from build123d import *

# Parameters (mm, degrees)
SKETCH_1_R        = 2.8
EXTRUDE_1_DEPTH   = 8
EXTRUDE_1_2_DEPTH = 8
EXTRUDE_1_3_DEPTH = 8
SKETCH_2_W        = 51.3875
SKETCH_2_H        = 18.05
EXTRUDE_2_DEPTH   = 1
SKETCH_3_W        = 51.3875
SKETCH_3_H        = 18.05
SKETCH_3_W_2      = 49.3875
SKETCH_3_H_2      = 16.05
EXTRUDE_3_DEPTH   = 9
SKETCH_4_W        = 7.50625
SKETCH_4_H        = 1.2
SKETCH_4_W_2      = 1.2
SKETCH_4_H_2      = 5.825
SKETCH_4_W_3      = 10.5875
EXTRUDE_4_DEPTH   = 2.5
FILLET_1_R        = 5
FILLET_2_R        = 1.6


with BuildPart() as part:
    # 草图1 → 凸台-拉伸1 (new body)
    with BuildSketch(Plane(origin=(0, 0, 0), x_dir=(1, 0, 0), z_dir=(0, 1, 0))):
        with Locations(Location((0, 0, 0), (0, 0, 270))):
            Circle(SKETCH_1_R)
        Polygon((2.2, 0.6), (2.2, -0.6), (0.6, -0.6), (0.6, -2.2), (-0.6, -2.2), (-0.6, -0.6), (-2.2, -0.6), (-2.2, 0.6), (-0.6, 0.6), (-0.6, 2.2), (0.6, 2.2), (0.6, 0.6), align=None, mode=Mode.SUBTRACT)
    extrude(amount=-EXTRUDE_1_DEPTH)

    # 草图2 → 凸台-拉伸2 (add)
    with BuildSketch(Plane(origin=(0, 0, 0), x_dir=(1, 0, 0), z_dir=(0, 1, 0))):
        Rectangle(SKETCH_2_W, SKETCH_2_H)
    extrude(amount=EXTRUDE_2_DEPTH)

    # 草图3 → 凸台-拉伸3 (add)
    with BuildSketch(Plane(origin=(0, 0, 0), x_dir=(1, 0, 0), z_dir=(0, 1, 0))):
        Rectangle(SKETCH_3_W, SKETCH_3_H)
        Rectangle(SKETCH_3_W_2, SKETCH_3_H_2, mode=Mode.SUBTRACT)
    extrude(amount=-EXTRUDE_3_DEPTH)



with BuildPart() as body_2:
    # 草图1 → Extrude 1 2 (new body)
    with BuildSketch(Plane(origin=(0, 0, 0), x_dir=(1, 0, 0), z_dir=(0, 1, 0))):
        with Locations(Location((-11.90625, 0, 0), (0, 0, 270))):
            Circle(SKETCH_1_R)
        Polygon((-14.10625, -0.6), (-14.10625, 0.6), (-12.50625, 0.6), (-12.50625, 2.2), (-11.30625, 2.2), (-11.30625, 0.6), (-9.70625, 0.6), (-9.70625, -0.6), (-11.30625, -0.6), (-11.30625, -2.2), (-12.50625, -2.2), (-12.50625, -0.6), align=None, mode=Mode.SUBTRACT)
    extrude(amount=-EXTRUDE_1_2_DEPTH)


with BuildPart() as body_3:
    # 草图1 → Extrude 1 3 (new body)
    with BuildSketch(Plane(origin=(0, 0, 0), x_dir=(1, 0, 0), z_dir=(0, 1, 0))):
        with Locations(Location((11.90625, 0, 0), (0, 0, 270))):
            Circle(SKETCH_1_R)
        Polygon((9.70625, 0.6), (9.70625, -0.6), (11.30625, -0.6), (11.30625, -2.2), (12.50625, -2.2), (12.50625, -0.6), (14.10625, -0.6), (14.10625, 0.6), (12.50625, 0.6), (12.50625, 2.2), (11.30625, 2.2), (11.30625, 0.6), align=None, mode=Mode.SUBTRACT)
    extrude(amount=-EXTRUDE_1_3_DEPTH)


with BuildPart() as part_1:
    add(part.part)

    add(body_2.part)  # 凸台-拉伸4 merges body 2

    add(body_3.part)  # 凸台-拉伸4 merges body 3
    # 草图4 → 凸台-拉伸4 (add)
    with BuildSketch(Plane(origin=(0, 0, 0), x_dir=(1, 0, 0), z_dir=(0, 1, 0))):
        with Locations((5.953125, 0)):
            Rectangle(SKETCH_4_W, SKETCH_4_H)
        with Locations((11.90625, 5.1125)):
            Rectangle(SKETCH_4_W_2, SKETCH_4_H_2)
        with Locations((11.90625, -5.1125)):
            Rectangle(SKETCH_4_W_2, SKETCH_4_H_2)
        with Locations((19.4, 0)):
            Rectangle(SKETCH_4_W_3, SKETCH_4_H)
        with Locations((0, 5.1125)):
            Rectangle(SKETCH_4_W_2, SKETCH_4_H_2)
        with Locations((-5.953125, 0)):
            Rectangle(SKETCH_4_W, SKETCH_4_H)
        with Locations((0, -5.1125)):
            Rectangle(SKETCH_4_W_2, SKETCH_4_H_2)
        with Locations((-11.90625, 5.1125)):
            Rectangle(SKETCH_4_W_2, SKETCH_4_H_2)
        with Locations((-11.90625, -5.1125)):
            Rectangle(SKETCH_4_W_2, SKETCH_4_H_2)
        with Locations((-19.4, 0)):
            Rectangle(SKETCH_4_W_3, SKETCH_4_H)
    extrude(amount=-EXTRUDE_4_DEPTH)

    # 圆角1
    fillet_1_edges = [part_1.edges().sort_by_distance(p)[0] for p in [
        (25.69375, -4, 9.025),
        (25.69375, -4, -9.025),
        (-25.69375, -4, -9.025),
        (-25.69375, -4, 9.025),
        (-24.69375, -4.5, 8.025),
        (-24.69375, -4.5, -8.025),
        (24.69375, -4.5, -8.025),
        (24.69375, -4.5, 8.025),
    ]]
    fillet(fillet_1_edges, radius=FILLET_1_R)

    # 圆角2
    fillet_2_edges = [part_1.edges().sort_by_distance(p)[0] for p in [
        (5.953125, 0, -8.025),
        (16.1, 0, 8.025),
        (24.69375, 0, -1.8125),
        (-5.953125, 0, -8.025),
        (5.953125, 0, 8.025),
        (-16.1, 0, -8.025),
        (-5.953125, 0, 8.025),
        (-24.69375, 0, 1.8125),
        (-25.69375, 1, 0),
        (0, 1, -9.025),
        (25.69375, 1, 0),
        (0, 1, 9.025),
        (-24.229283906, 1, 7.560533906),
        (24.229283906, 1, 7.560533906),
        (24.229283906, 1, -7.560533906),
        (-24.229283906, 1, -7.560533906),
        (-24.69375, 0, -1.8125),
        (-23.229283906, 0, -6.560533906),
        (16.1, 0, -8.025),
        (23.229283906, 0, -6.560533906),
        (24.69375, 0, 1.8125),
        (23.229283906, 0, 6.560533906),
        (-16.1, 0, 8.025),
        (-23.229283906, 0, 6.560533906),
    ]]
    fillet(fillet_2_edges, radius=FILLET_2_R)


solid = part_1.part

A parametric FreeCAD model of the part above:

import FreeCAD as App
import Part
import Sketcher
from FreeCAD import Vector


def edges_at(feature, points):
    """Names of the edges that pass closest to the given points."""
    edges = feature.Shape.Edges
    near = lambda p: min(range(len(edges)), key=lambda i: edges[i].distToShape(Part.Vertex(*p))[0])
    return sorted({f"Edge{near(p) + 1}" for p in points})

doc = App.newDocument("Part")
body = doc.addObject("PartDesign::Body", "Body")

# Sketch on XZ plane
sketch1 = body.newObject("Sketcher::SketchObject", "Sketch")
sketch1.AttachmentSupport = (doc.getObject("XZ_Plane"), [""])
sketch1.MapMode = "FlatFace"
sketch1.addGeometry([
    Part.Circle(Vector(0, 0, 0), Vector(0, 0, 1), 2.8),  # 0
    Part.LineSegment(Vector(0.6, -0.6, 0), Vector(2.2, -0.6, 0)),  # 1
    Part.LineSegment(Vector(2.2, -0.6, 0), Vector(2.2, 0.6, 0)),  # 2
    Part.LineSegment(Vector(2.2, 0.6, 0), Vector(0.6, 0.6, 0)),  # 3
    Part.LineSegment(Vector(0.6, 0.6, 0), Vector(0.6, 2.2, 0)),  # 4
    Part.LineSegment(Vector(0.6, 2.2, 0), Vector(-0.6, 2.2, 0)),  # 5
    Part.LineSegment(Vector(-0.6, 2.2, 0), Vector(-0.6, 0.6, 0)),  # 6
    Part.LineSegment(Vector(-0.6, 0.6, 0), Vector(-2.2, 0.6, 0)),  # 7
    Part.LineSegment(Vector(-2.2, 0.6, 0), Vector(-2.2, -0.6, 0)),  # 8
    Part.LineSegment(Vector(-2.2, -0.6, 0), Vector(-0.6, -0.6, 0)),  # 9
    Part.LineSegment(Vector(-0.6, -0.6, 0), Vector(-0.6, -2.2, 0)),  # 10
    Part.LineSegment(Vector(-0.6, -2.2, 0), Vector(0.6, -2.2, 0)),  # 11
    Part.LineSegment(Vector(0.6, -2.2, 0), Vector(0.6, -0.6, 0)),  # 12
], False)
sketch1.addConstraint([
    Sketcher.Constraint("Coincident", 1, 2, 2, 1),
    Sketcher.Constraint("Coincident", 2, 2, 3, 1),
    Sketcher.Constraint("Coincident", 3, 2, 4, 1),
    Sketcher.Constraint("Coincident", 4, 2, 5, 1),
    Sketcher.Constraint("Coincident", 5, 2, 6, 1),
    Sketcher.Constraint("Coincident", 6, 2, 7, 1),
    Sketcher.Constraint("Coincident", 7, 2, 8, 1),
    Sketcher.Constraint("Coincident", 8, 2, 9, 1),
    Sketcher.Constraint("Coincident", 9, 2, 10, 1),
    Sketcher.Constraint("Coincident", 10, 2, 11, 1),
    Sketcher.Constraint("Coincident", 11, 2, 12, 1),
    Sketcher.Constraint("Coincident", 12, 2, 1, 1),
    Sketcher.Constraint("Horizontal", 1),
    Sketcher.Constraint("Vertical", 2),
    Sketcher.Constraint("Horizontal", 3),
    Sketcher.Constraint("Vertical", 4),
    Sketcher.Constraint("Horizontal", 5),
    Sketcher.Constraint("Vertical", 6),
    Sketcher.Constraint("Horizontal", 7),
    Sketcher.Constraint("Vertical", 8),
    Sketcher.Constraint("Horizontal", 9),
    Sketcher.Constraint("Vertical", 10),
    Sketcher.Constraint("Horizontal", 11),
    Sketcher.Constraint("Vertical", 12),
    Sketcher.Constraint("Coincident", 0, 3, -1, 1),
    Sketcher.Constraint("Symmetric", 1, 2, 7, 2, -1, 1),
    Sketcher.Constraint("Symmetric", 3, 2, 9, 2, -1, 1),
    Sketcher.Constraint("Symmetric", 5, 2, 11, 2, -1, 1),
    Sketcher.Constraint("Symmetric", 3, 2, 6, 2, -2),
    Sketcher.Constraint("Equal", 11, 2),
    Sketcher.Constraint("Equal", 9, 4),
    Sketcher.Constraint("Diameter", 0, 5.6),
    Sketcher.Constraint("DistanceX", 1, 1, 1, 2, 1.6),
    Sketcher.Constraint("DistanceX", 5, 2, 5, 1, 1.2),
])
pad1 = body.newObject("PartDesign::Pad", "Pad")
pad1.Profile = sketch1
pad1.Length = 8

# Sketch on XZ plane
sketch2 = body.newObject("Sketcher::SketchObject", "Sketch001")
sketch2.AttachmentSupport = (doc.getObject("XZ_Plane"), [""])
sketch2.MapMode = "FlatFace"
sketch2.addGeometry([
    Part.LineSegment(Vector(-25.69375, -9.025, 0), Vector(-25.69375, 9.025, 0)),
    Part.LineSegment(Vector(-25.69375, 9.025, 0), Vector(25.69375, 9.025, 0)),
    Part.LineSegment(Vector(25.69375, 9.025, 0), Vector(25.69375, -9.025, 0)),
    Part.LineSegment(Vector(25.69375, -9.025, 0), Vector(-25.69375, -9.025, 0)),
], False)
sketch2.addConstraint([
    Sketcher.Constraint("Coincident", 0, 2, 1, 1),
    Sketcher.Constraint("Coincident", 1, 2, 2, 1),
    Sketcher.Constraint("Coincident", 2, 2, 3, 1),
    Sketcher.Constraint("Coincident", 3, 2, 0, 1),
    Sketcher.Constraint("Vertical", 0),
    Sketcher.Constraint("Horizontal", 1),
    Sketcher.Constraint("Vertical", 2),
    Sketcher.Constraint("Horizontal", 3),
    Sketcher.Constraint("Symmetric", 0, 2, 2, 2, -1, 1),
    Sketcher.Constraint("DistanceY", 0, 1, 0, 2, 18.05),
    Sketcher.Constraint("DistanceX", 1, 1, 1, 2, 51.3875),
])
pad2 = body.newObject("PartDesign::Pad", "Pad001")
pad2.Profile = sketch2
pad2.Length = 1
pad2.Reversed = True

# Sketch on XZ plane
sketch3 = body.newObject("Sketcher::SketchObject", "Sketch002")
sketch3.AttachmentSupport = (doc.getObject("XZ_Plane"), [""])
sketch3.MapMode = "FlatFace"
sketch3.addGeometry([
    Part.LineSegment(Vector(-25.69375, -9.025, 0), Vector(-25.69375, 9.025, 0)),  # 0
    Part.LineSegment(Vector(-25.69375, 9.025, 0), Vector(25.69375, 9.025, 0)),  # 1
    Part.LineSegment(Vector(25.69375, 9.025, 0), Vector(25.69375, -9.025, 0)),  # 2
    Part.LineSegment(Vector(25.69375, -9.025, 0), Vector(-25.69375, -9.025, 0)),  # 3
    Part.LineSegment(Vector(24.69375, 8.025, 0), Vector(-24.69375, 8.025, 0)),  # 4
    Part.LineSegment(Vector(-24.69375, 8.025, 0), Vector(-24.69375, -8.025, 0)),  # 5
    Part.LineSegment(Vector(-24.69375, -8.025, 0), Vector(24.69375, -8.025, 0)),  # 6
    Part.LineSegment(Vector(24.69375, -8.025, 0), Vector(24.69375, 8.025, 0)),  # 7
], False)
sketch3.addConstraint([
    Sketcher.Constraint("Coincident", 0, 2, 1, 1),
    Sketcher.Constraint("Coincident", 1, 2, 2, 1),
    Sketcher.Constraint("Coincident", 2, 2, 3, 1),
    Sketcher.Constraint("Coincident", 3, 2, 0, 1),
    Sketcher.Constraint("Coincident", 4, 2, 5, 1),
    Sketcher.Constraint("Coincident", 5, 2, 6, 1),
    Sketcher.Constraint("Coincident", 6, 2, 7, 1),
    Sketcher.Constraint("Coincident", 7, 2, 4, 1),
    Sketcher.Constraint("Vertical", 0),
    Sketcher.Constraint("Horizontal", 1),
    Sketcher.Constraint("Vertical", 2),
    Sketcher.Constraint("Horizontal", 3),
    Sketcher.Constraint("Horizontal", 4),
    Sketcher.Constraint("Vertical", 5),
    Sketcher.Constraint("Horizontal", 6),
    Sketcher.Constraint("Vertical", 7),
    Sketcher.Constraint("Symmetric", 0, 2, 2, 2, -1, 1),
    Sketcher.Constraint("Symmetric", 4, 2, 6, 2, -1, 1),
    Sketcher.Constraint("DistanceX", 0, 2, 4, 2, 1.0),
    Sketcher.Constraint("DistanceY", 4, 2, 0, 2, 1.0),
    Sketcher.Constraint("DistanceY", 0, 1, 0, 2, 18.05),
    Sketcher.Constraint("DistanceX", 1, 1, 1, 2, 51.3875),
])
pad3 = body.newObject("PartDesign::Pad", "Pad002")
pad3.Profile = sketch3
pad3.Length = 9
body2 = doc.addObject("PartDesign::Body", "Body001")

# Sketch on XZ plane
sketch4 = body2.newObject("Sketcher::SketchObject", "Sketch003")
sketch4.AttachmentSupport = (doc.getObject("XZ_Plane001"), [""])
sketch4.MapMode = "FlatFace"
sketch4.addGeometry([
    Part.Circle(Vector(-11.90625, 0, 0), Vector(0, 0, 1), 2.8),  # 0
    Part.LineSegment(Vector(-12.50625, 0.6, 0), Vector(-14.10625, 0.6, 0)),  # 1
    Part.LineSegment(Vector(-14.10625, 0.6, 0), Vector(-14.10625, -0.6, 0)),  # 2
    Part.LineSegment(Vector(-14.10625, -0.6, 0), Vector(-12.50625, -0.6, 0)),  # 3
    Part.LineSegment(Vector(-12.50625, -0.6, 0), Vector(-12.50625, -2.2, 0)),  # 4
    Part.LineSegment(Vector(-12.50625, -2.2, 0), Vector(-11.30625, -2.2, 0)),  # 5
    Part.LineSegment(Vector(-11.30625, -2.2, 0), Vector(-11.30625, -0.6, 0)),  # 6
    Part.LineSegment(Vector(-11.30625, -0.6, 0), Vector(-9.70625, -0.6, 0)),  # 7
    Part.LineSegment(Vector(-9.70625, -0.6, 0), Vector(-9.70625, 0.6, 0)),  # 8
    Part.LineSegment(Vector(-9.70625, 0.6, 0), Vector(-11.30625, 0.6, 0)),  # 9
    Part.LineSegment(Vector(-11.30625, 0.6, 0), Vector(-11.30625, 2.2, 0)),  # 10
    Part.LineSegment(Vector(-11.30625, 2.2, 0), Vector(-12.50625, 2.2, 0)),  # 11
    Part.LineSegment(Vector(-12.50625, 2.2, 0), Vector(-12.50625, 0.6, 0)),  # 12
], False)
sketch4.addConstraint([
    Sketcher.Constraint("Coincident", 1, 2, 2, 1),
    Sketcher.Constraint("Coincident", 2, 2, 3, 1),
    Sketcher.Constraint("Coincident", 3, 2, 4, 1),
    Sketcher.Constraint("Coincident", 4, 2, 5, 1),
    Sketcher.Constraint("Coincident", 5, 2, 6, 1),
    Sketcher.Constraint("Coincident", 6, 2, 7, 1),
    Sketcher.Constraint("Coincident", 7, 2, 8, 1),
    Sketcher.Constraint("Coincident", 8, 2, 9, 1),
    Sketcher.Constraint("Coincident", 9, 2, 10, 1),
    Sketcher.Constraint("Coincident", 10, 2, 11, 1),
    Sketcher.Constraint("Coincident", 11, 2, 12, 1),
    Sketcher.Constraint("Coincident", 12, 2, 1, 1),
    Sketcher.Constraint("Horizontal", 1),
    Sketcher.Constraint("Vertical", 2),
    Sketcher.Constraint("Horizontal", 3),
    Sketcher.Constraint("Vertical", 4),
    Sketcher.Constraint("Horizontal", 5),
    Sketcher.Constraint("Vertical", 6),
    Sketcher.Constraint("Horizontal", 7),
    Sketcher.Constraint("Vertical", 8),
    Sketcher.Constraint("Horizontal", 9),
    Sketcher.Constraint("Vertical", 10),
    Sketcher.Constraint("Horizontal", 11),
    Sketcher.Constraint("Vertical", 12),
    Sketcher.Constraint("Symmetric", 6, 2, 9, 2, -1),
    Sketcher.Constraint("Symmetric", 4, 2, 11, 2, -1),
    Sketcher.Constraint("PointOnObject", 0, 3, -1),
    Sketcher.Constraint("Horizontal", 3, 2, 6, 2),
    Sketcher.Constraint("Horizontal", 1, 2, 8, 2),
    Sketcher.Constraint("Equal", 3, 7),
    Sketcher.Constraint("Equal", 11, 2),
    Sketcher.Constraint("Equal", 9, 4),
    Sketcher.Constraint("Diameter", 0, 5.6),
    Sketcher.Constraint("DistanceX", 1, 2, 1, 1, 1.6),
    Sketcher.Constraint("DistanceX", 5, 1, 5, 2, 1.2),
    Sketcher.Constraint("DistanceX", 1, 2, 0, 3, 2.2),
    Sketcher.Constraint("DistanceX", 0, 3, -1, 1, 11.90625),
])
pad4 = body2.newObject("PartDesign::Pad", "Pad003")
pad4.Profile = sketch4
pad4.Length = 8
body3 = doc.addObject("PartDesign::Body", "Body002")

# Sketch on XZ plane
sketch5 = body3.newObject("Sketcher::SketchObject", "Sketch004")
sketch5.AttachmentSupport = (doc.getObject("XZ_Plane002"), [""])
sketch5.MapMode = "FlatFace"
sketch5.addGeometry([
    Part.Circle(Vector(11.90625, 0, 0), Vector(0, 0, 1), 2.8),  # 0
    Part.LineSegment(Vector(9.70625, 0.6, 0), Vector(9.70625, -0.6, 0)),  # 1
    Part.LineSegment(Vector(9.70625, -0.6, 0), Vector(11.30625, -0.6, 0)),  # 2
    Part.LineSegment(Vector(11.30625, -0.6, 0), Vector(11.30625, -2.2, 0)),  # 3
    Part.LineSegment(Vector(11.30625, -2.2, 0), Vector(12.50625, -2.2, 0)),  # 4
    Part.LineSegment(Vector(12.50625, -2.2, 0), Vector(12.50625, -0.6, 0)),  # 5
    Part.LineSegment(Vector(12.50625, -0.6, 0), Vector(14.10625, -0.6, 0)),  # 6
    Part.LineSegment(Vector(14.10625, -0.6, 0), Vector(14.10625, 0.6, 0)),  # 7
    Part.LineSegment(Vector(14.10625, 0.6, 0), Vector(12.50625, 0.6, 0)),  # 8
    Part.LineSegment(Vector(12.50625, 0.6, 0), Vector(12.50625, 2.2, 0)),  # 9
    Part.LineSegment(Vector(12.50625, 2.2, 0), Vector(11.30625, 2.2, 0)),  # 10
    Part.LineSegment(Vector(11.30625, 2.2, 0), Vector(11.30625, 0.6, 0)),  # 11
    Part.LineSegment(Vector(11.30625, 0.6, 0), Vector(9.70625, 0.6, 0)),  # 12
], False)
sketch5.addConstraint([
    Sketcher.Constraint("Coincident", 1, 2, 2, 1),
    Sketcher.Constraint("Coincident", 2, 2, 3, 1),
    Sketcher.Constraint("Coincident", 3, 2, 4, 1),
    Sketcher.Constraint("Coincident", 4, 2, 5, 1),
    Sketcher.Constraint("Coincident", 5, 2, 6, 1),
    Sketcher.Constraint("Coincident", 6, 2, 7, 1),
    Sketcher.Constraint("Coincident", 7, 2, 8, 1),
    Sketcher.Constraint("Coincident", 8, 2, 9, 1),
    Sketcher.Constraint("Coincident", 9, 2, 10, 1),
    Sketcher.Constraint("Coincident", 10, 2, 11, 1),
    Sketcher.Constraint("Coincident", 11, 2, 12, 1),
    Sketcher.Constraint("Coincident", 12, 2, 1, 1),
    Sketcher.Constraint("Vertical", 1),
    Sketcher.Constraint("Horizontal", 2),
    Sketcher.Constraint("Vertical", 3),
    Sketcher.Constraint("Horizontal", 4),
    Sketcher.Constraint("Vertical", 5),
    Sketcher.Constraint("Horizontal", 6),
    Sketcher.Constraint("Vertical", 7),
    Sketcher.Constraint("Horizontal", 8),
    Sketcher.Constraint("Vertical", 9),
    Sketcher.Constraint("Horizontal", 10),
    Sketcher.Constraint("Vertical", 11),
    Sketcher.Constraint("Horizontal", 12),
    Sketcher.Constraint("Symmetric", 5, 2, 8, 2, -1),
    Sketcher.Constraint("Symmetric", 3, 2, 10, 2, -1),
    Sketcher.Constraint("PointOnObject", 0, 3, -1),
    Sketcher.Constraint("Horizontal", 2, 2, 5, 2),
    Sketcher.Constraint("Horizontal", 8, 2, 11, 2),
    Sketcher.Constraint("Equal", 2, 6),
    Sketcher.Constraint("Equal", 10, 1),
    Sketcher.Constraint("Equal", 12, 3),
    Sketcher.Constraint("Diameter", 0, 5.6),
    Sketcher.Constraint("DistanceX", 2, 1, 2, 2, 1.6),
    Sketcher.Constraint("DistanceX", 4, 1, 4, 2, 1.2),
    Sketcher.Constraint("DistanceX", 1, 2, 0, 3, 2.2),
    Sketcher.Constraint("DistanceX", -1, 1, 0, 3, 11.90625),
])
pad5 = body3.newObject("PartDesign::Pad", "Pad004")
pad5.Profile = sketch5
pad5.Length = 8
doc.recompute()

boolean = body.newObject("PartDesign::Boolean", "Boolean")
boolean.Type = "Fuse"
boolean.addObjects([body2])
doc.recompute()

boolean2 = body.newObject("PartDesign::Boolean", "Boolean001")
boolean2.Type = "Fuse"
boolean2.addObjects([body3])

# Sketch on XZ plane
sketch6 = body.newObject("Sketcher::SketchObject", "Sketch005")
sketch6.AttachmentSupport = (doc.getObject("XZ_Plane"), [""])
sketch6.MapMode = "FlatFace"
sketch6.addGeometry([
    Part.LineSegment(Vector(2.2, -0.6, 0), Vector(2.2, 0.6, 0)),  # 0
    Part.LineSegment(Vector(2.2, 0.6, 0), Vector(9.70625, 0.6, 0)),  # 1
    Part.LineSegment(Vector(9.70625, 0.6, 0), Vector(9.70625, -0.6, 0)),  # 2
    Part.LineSegment(Vector(9.70625, -0.6, 0), Vector(2.2, -0.6, 0)),  # 3
    Part.LineSegment(Vector(11.30625, -8.025, 0), Vector(11.30625, -2.2, 0)),  # 4
    Part.LineSegment(Vector(11.30625, -2.2, 0), Vector(12.50625, -2.2, 0)),  # 5
    Part.LineSegment(Vector(12.50625, -2.2, 0), Vector(12.50625, -8.025, 0)),  # 6
    Part.LineSegment(Vector(12.50625, -8.025, 0), Vector(11.30625, -8.025, 0)),  # 7
    Part.LineSegment(Vector(11.30625, 2.2, 0), Vector(11.30625, 8.025, 0)),  # 8
    Part.LineSegment(Vector(11.30625, 8.025, 0), Vector(12.50625, 8.025, 0)),  # 9
    Part.LineSegment(Vector(12.50625, 8.025, 0), Vector(12.50625, 2.2, 0)),  # 10
    Part.LineSegment(Vector(12.50625, 2.2, 0), Vector(11.30625, 2.2, 0)),  # 11
    Part.LineSegment(Vector(14.10625, -0.6, 0), Vector(14.10625, 0.6, 0)),  # 12
    Part.LineSegment(Vector(14.10625, 0.6, 0), Vector(24.69375, 0.6, 0)),  # 13
    Part.LineSegment(Vector(24.69375, 0.6, 0), Vector(24.69375, -0.6, 0)),  # 14
    Part.LineSegment(Vector(24.69375, -0.6, 0), Vector(14.10625, -0.6, 0)),  # 15
    Part.LineSegment(Vector(-0.6, -8.025, 0), Vector(-0.6, -2.2, 0)),  # 16
    Part.LineSegment(Vector(-0.6, -2.2, 0), Vector(0.6, -2.2, 0)),  # 17
    Part.LineSegment(Vector(0.6, -2.2, 0), Vector(0.6, -8.025, 0)),  # 18
    Part.LineSegment(Vector(0.6, -8.025, 0), Vector(-0.6, -8.025, 0)),  # 19
    Part.LineSegment(Vector(-9.70625, -0.6, 0), Vector(-9.70625, 0.6, 0)),  # 20
    Part.LineSegment(Vector(-9.70625, 0.6, 0), Vector(-2.2, 0.6, 0)),  # 21
    Part.LineSegment(Vector(-2.2, 0.6, 0), Vector(-2.2, -0.6, 0)),  # 22
    Part.LineSegment(Vector(-2.2, -0.6, 0), Vector(-9.70625, -0.6, 0)),  # 23
    Part.LineSegment(Vector(-0.6, 2.2, 0), Vector(-0.6, 8.025, 0)),  # 24
    Part.LineSegment(Vector(-0.6, 8.025, 0), Vector(0.6, 8.025, 0)),  # 25
    Part.LineSegment(Vector(0.6, 8.025, 0), Vector(0.6, 2.2, 0)),  # 26
    Part.LineSegment(Vector(0.6, 2.2, 0), Vector(-0.6, 2.2, 0)),  # 27
    Part.LineSegment(Vector(-12.50625, -8.025, 0), Vector(-12.50625, -2.2, 0)),  # 28
    Part.LineSegment(Vector(-12.50625, -2.2, 0), Vector(-11.30625, -2.2, 0)),  # 29
    Part.LineSegment(Vector(-11.30625, -2.2, 0), Vector(-11.30625, -8.025, 0)),  # 30
    Part.LineSegment(Vector(-11.30625, -8.025, 0), Vector(-12.50625, -8.025, 0)),  # 31
    Part.LineSegment(Vector(-12.50625, 2.2, 0), Vector(-12.50625, 8.025, 0)),  # 32
    Part.LineSegment(Vector(-12.50625, 8.025, 0), Vector(-11.30625, 8.025, 0)),  # 33
    Part.LineSegment(Vector(-11.30625, 8.025, 0), Vector(-11.30625, 2.2, 0)),  # 34
    Part.LineSegment(Vector(-11.30625, 2.2, 0), Vector(-12.50625, 2.2, 0)),  # 35
    Part.LineSegment(Vector(-24.69375, -0.6, 0), Vector(-24.69375, 0.6, 0)),  # 36
    Part.LineSegment(Vector(-24.69375, 0.6, 0), Vector(-14.10625, 0.6, 0)),  # 37
    Part.LineSegment(Vector(-14.10625, 0.6, 0), Vector(-14.10625, -0.6, 0)),  # 38
    Part.LineSegment(Vector(-14.10625, -0.6, 0), Vector(-24.69375, -0.6, 0)),  # 39
], False)
sketch6.addConstraint([
    Sketcher.Constraint("Coincident", 0, 2, 1, 1),
    Sketcher.Constraint("Coincident", 1, 2, 2, 1),
    Sketcher.Constraint("Coincident", 2, 2, 3, 1),
    Sketcher.Constraint("Coincident", 3, 2, 0, 1),
    Sketcher.Constraint("Coincident", 4, 2, 5, 1),
    Sketcher.Constraint("Coincident", 5, 2, 6, 1),
    Sketcher.Constraint("Coincident", 6, 2, 7, 1),
    Sketcher.Constraint("Coincident", 7, 2, 4, 1),
    Sketcher.Constraint("Coincident", 8, 2, 9, 1),
    Sketcher.Constraint("Coincident", 9, 2, 10, 1),
    Sketcher.Constraint("Coincident", 10, 2, 11, 1),
    Sketcher.Constraint("Coincident", 11, 2, 8, 1),
    Sketcher.Constraint("Coincident", 12, 2, 13, 1),
    Sketcher.Constraint("Coincident", 13, 2, 14, 1),
    Sketcher.Constraint("Coincident", 14, 2, 15, 1),
    Sketcher.Constraint("Coincident", 15, 2, 12, 1),
    Sketcher.Constraint("Coincident", 16, 2, 17, 1),
    Sketcher.Constraint("Coincident", 17, 2, 18, 1),
    Sketcher.Constraint("Coincident", 18, 2, 19, 1),
    Sketcher.Constraint("Coincident", 19, 2, 16, 1),
    Sketcher.Constraint("Coincident", 20, 2, 21, 1),
    Sketcher.Constraint("Coincident", 21, 2, 22, 1),
    Sketcher.Constraint("Coincident", 22, 2, 23, 1),
    Sketcher.Constraint("Coincident", 23, 2, 20, 1),
    Sketcher.Constraint("Coincident", 24, 2, 25, 1),
    Sketcher.Constraint("Coincident", 25, 2, 26, 1),
    Sketcher.Constraint("Coincident", 26, 2, 27, 1),
    Sketcher.Constraint("Coincident", 27, 2, 24, 1),
    Sketcher.Constraint("Coincident", 28, 2, 29, 1),
    Sketcher.Constraint("Coincident", 29, 2, 30, 1),
    Sketcher.Constraint("Coincident", 30, 2, 31, 1),
    Sketcher.Constraint("Coincident", 31, 2, 28, 1),
    Sketcher.Constraint("Coincident", 32, 2, 33, 1),
    Sketcher.Constraint("Coincident", 33, 2, 34, 1),
    Sketcher.Constraint("Coincident", 34, 2, 35, 1),
    Sketcher.Constraint("Coincident", 35, 2, 32, 1),
    Sketcher.Constraint("Coincident", 36, 2, 37, 1),
    Sketcher.Constraint("Coincident", 37, 2, 38, 1),
    Sketcher.Constraint("Coincident", 38, 2, 39, 1),
    Sketcher.Constraint("Coincident", 39, 2, 36, 1),
    Sketcher.Constraint("Vertical", 0),
    Sketcher.Constraint("Horizontal", 1),
    Sketcher.Constraint("Vertical", 2),
    Sketcher.Constraint("Horizontal", 3),
    Sketcher.Constraint("Vertical", 4),
    Sketcher.Constraint("Horizontal", 5),
    Sketcher.Constraint("Vertical", 6),
    Sketcher.Constraint("Horizontal", 7),
    Sketcher.Constraint("Vertical", 8),
    Sketcher.Constraint("Horizontal", 9),
    Sketcher.Constraint("Vertical", 10),
    Sketcher.Constraint("Horizontal", 11),
    Sketcher.Constraint("Vertical", 12),
    Sketcher.Constraint("Horizontal", 13),
    Sketcher.Constraint("Vertical", 14),
    Sketcher.Constraint("Horizontal", 15),
    Sketcher.Constraint("Vertical", 16),
    Sketcher.Constraint("Horizontal", 17),
    Sketcher.Constraint("Vertical", 18),
    Sketcher.Constraint("Horizontal", 19),
    Sketcher.Constraint("Vertical", 20),
    Sketcher.Constraint("Horizontal", 21),
    Sketcher.Constraint("Vertical", 22),
    Sketcher.Constraint("Horizontal", 23),
    Sketcher.Constraint("Vertical", 24),
    Sketcher.Constraint("Horizontal", 25),
    Sketcher.Constraint("Vertical", 26),
    Sketcher.Constraint("Horizontal", 27),
    Sketcher.Constraint("Vertical", 28),
    Sketcher.Constraint("Horizontal", 29),
    Sketcher.Constraint("Vertical", 30),
    Sketcher.Constraint("Horizontal", 31),
    Sketcher.Constraint("Vertical", 32),
    Sketcher.Constraint("Horizontal", 33),
    Sketcher.Constraint("Vertical", 34),
    Sketcher.Constraint("Horizontal", 35),
    Sketcher.Constraint("Vertical", 36),
    Sketcher.Constraint("Horizontal", 37),
    Sketcher.Constraint("Vertical", 38),
    Sketcher.Constraint("Horizontal", 39),
    Sketcher.Constraint("Symmetric", 2, 2, 20, 2, -1, 1),
    Sketcher.Constraint("Symmetric", 0, 2, 22, 2, -1, 1),
    Sketcher.Constraint("Symmetric", 18, 2, 24, 2, -1, 1),
    Sketcher.Constraint("Symmetric", 16, 2, 26, 2, -1, 1),
    Sketcher.Constraint("Symmetric", 10, 2, 28, 2, -1, 1),
    Sketcher.Constraint("Symmetric", 8, 2, 30, 2, -1, 1),
    Sketcher.Constraint("Symmetric", 6, 2, 32, 2, -1, 1),
    Sketcher.Constraint("Symmetric", 4, 2, 34, 2, -1, 1),
    Sketcher.Constraint("Symmetric", 14, 2, 36, 2, -1, 1),
    Sketcher.Constraint("Symmetric", 12, 2, 38, 2, -1, 1),
    Sketcher.Constraint("Symmetric", 5, 2, 28, 2, -2),
    Sketcher.Constraint("Symmetric", 7, 2, 30, 2, -2),
    Sketcher.Constraint("Horizontal", 1, 2, 12, 2),
    Sketcher.Constraint("Horizontal", 3, 2, 14, 2),
    Sketcher.Constraint("Horizontal", 5, 2, 16, 2),
    Sketcher.Constraint("Horizontal", 7, 2, 18, 2),
    Sketcher.Constraint("Horizontal", 13, 2, 20, 2),
    Sketcher.Constraint("Vertical", 19, 2, 24, 2),
    Sketcher.Constraint("Equal", 11, 17),
    Sketcher.Constraint("Equal", 35, 0),
    Sketcher.Constraint("DistanceX", 5, 1, 5, 2, 1.2),
    Sketcher.Constraint("DistanceX", -1, 1, 0, 2, 2.2),
    Sketcher.Constraint("DistanceY", 4, 2, -1, 1, 2.2),
    Sketcher.Constraint("DistanceX", 2, 2, 4, 2, 1.6),
    Sketcher.Constraint("DistanceX", 10, 2, 12, 2, 1.6),
    Sketcher.Constraint("DistanceY", 4, 1, 4, 2, 5.825),
    Sketcher.Constraint("DistanceX", 13, 1, 13, 2, 10.5875),
    Sketcher.Constraint("DistanceX", 1, 1, 1, 2, 7.50625),
])
pad6 = body.newObject("PartDesign::Pad", "Pad005")
pad6.Profile = sketch6
pad6.Length = 2.5
doc.recompute()

fillet = body.newObject("PartDesign::Fillet", "Fillet")
fillet.Base = (pad6, edges_at(pad6, [
    (25.694, -4, 9.025),
    (25.694, -4, -9.025),
    (-25.694, -4, -9.025),
    (-25.694, -4, 9.025),
    (-24.694, -4.5, 8.025),
    (-24.694, -4.5, -8.025),
    (24.694, -4.5, -8.025),
    (24.694, -4.5, 8.025),
]))
fillet.Radius = 5
doc.recompute()

fillet2 = body.newObject("PartDesign::Fillet", "Fillet001")
fillet2.Base = (fillet, edges_at(fillet, [
    (5.953, 0, -8.025),
    (16.1, 0, 8.025),
    (24.694, 0, -1.812),
    (-5.953, 0, -8.025),
    (5.953, 0, 8.025),
    (-16.1, 0, -8.025),
    (-5.953, 0, 8.025),
    (-24.694, 0, 1.812),
    (-25.694, 1, 0),
    (0, 1, -9.025),
    (25.694, 1, 0),
    (0, 1, 9.025),
    (-24.229, 1, 7.561),
    (24.229, 1, 7.561),
    (24.229, 1, -7.561),
    (-24.229, 1, -7.561),
    (-24.694, 0, -1.812),
    (-23.229, 0, -6.561),
    (16.1, 0, -8.025),
    (23.229, 0, -6.561),
    (24.694, 0, 1.812),
    (23.229, 0, 6.561),
    (-16.1, 0, 8.025),
    (-23.229, 0, 6.561),
]))
fillet2.Radius = 1.6

doc.recompute()
